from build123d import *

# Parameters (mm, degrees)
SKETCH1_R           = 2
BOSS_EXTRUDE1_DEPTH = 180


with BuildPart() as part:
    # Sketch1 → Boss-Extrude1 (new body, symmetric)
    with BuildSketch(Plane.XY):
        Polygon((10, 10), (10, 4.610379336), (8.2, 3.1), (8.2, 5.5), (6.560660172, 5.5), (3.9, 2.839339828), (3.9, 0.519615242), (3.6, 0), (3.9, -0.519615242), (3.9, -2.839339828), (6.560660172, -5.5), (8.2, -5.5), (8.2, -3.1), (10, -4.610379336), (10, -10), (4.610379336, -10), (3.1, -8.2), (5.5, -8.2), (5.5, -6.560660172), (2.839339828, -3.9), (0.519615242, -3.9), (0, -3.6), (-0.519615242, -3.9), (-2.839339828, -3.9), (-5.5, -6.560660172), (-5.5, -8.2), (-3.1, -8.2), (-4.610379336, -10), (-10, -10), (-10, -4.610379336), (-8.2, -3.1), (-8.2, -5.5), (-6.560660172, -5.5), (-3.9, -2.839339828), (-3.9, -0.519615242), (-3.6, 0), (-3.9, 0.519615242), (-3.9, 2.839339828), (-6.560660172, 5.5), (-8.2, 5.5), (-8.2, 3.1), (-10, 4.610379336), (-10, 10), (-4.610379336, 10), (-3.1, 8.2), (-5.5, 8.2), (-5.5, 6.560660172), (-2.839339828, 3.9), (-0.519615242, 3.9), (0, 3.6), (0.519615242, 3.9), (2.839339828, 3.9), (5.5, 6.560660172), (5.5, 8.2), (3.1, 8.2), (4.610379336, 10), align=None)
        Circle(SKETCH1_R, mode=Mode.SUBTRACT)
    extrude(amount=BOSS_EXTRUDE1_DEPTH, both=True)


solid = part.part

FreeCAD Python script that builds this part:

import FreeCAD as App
import Part
import Sketcher
Q = App.Units.Quantity

doc = App.newDocument("Part")
body = doc.addObject("PartDesign::Body", "Body")

sketch1 = doc.addObject("Sketcher::SketchObject", "Sketch")
body.addObject(sketch1)
sketch1.AttachmentSupport = (doc.XY_Plane, [""])
sketch1.MapMode = "FlatFace"
sketch1.addGeometry([
    Part.LineSegment(App.Vector(10, 4.6, 0), App.Vector(10, 10, 0)),
    Part.LineSegment(App.Vector(10, 10, 0), App.Vector(4.6, 10, 0)),
    Part.LineSegment(App.Vector(4.6, 10, 0), App.Vector(3.1, 8.2, 0)),
    Part.LineSegment(App.Vector(3.1, 8.2, 0), App.Vector(5.5, 8.2, 0)),
    Part.LineSegment(App.Vector(5.5, 8.2, 0), App.Vector(5.5, 6.6, 0)),
    Part.LineSegment(App.Vector(5.5, 6.6, 0), App.Vector(2.8, 3.9, 0)),
    Part.LineSegment(App.Vector(2.8, 3.9, 0), App.Vector(0.5, 3.9, 0)),
    Part.LineSegment(App.Vector(0.5, 3.9, 0), App.Vector(0, 3.6, 0)),
    Part.LineSegment(App.Vector(0, 3.6, 0), App.Vector(-0.5, 3.9, 0)),
    Part.LineSegment(App.Vector(-0.5, 3.9, 0), App.Vector(-2.8, 3.9, 0)),
    Part.LineSegment(App.Vector(-2.8, 3.9, 0), App.Vector(-5.5, 6.6, 0)),
    Part.LineSegment(App.Vector(-5.5, 6.6, 0), App.Vector(-5.5, 8.2, 0)),
    Part.LineSegment(App.Vector(-5.5, 8.2, 0), App.Vector(-3.1, 8.2, 0)),
    Part.LineSegment(App.Vector(-3.1, 8.2, 0), App.Vector(-4.6, 10, 0)),
    Part.LineSegment(App.Vector(-4.6, 10, 0), App.Vector(-10, 10, 0)),
    Part.LineSegment(App.Vector(-10, 10, 0), App.Vector(-10, 4.6, 0)),
    Part.LineSegment(App.Vector(-10, 4.6, 0), App.Vector(-8.2, 3.1, 0)),
    Part.LineSegment(App.Vector(-8.2, 3.1, 0), App.Vector(-8.2, 5.5, 0)),
    Part.LineSegment(App.Vector(-8.2, 5.5, 0), App.Vector(-6.6, 5.5, 0)),
    Part.LineSegment(App.Vector(-6.6, 5.5, 0), App.Vector(-3.9, 2.8, 0)),
    Part.LineSegment(App.Vector(-3.9, 2.8, 0), App.Vector(-3.9, 0.5, 0)),
    Part.LineSegment(App.Vector(-3.9, 0.5, 0), App.Vector(-3.6, 0, 0)),
    Part.LineSegment(App.Vector(-3.6, 0, 0), App.Vector(-3.9, -0.5, 0)),
    Part.LineSegment(App.Vector(-3.9, -0.5, 0), App.Vector(-3.9, -2.8, 0)),
    Part.LineSegment(App.Vector(-3.9, -2.8, 0), App.Vector(-6.6, -5.5, 0)),
    Part.LineSegment(App.Vector(-6.6, -5.5, 0), App.Vector(-8.2, -5.5, 0)),
    Part.LineSegment(App.Vector(-8.2, -5.5, 0), App.Vector(-8.2, -3.1, 0)),
    Part.LineSegment(App.Vector(-8.2, -3.1, 0), App.Vector(-10, -4.6, 0)),
    Part.LineSegment(App.Vector(-10, -4.6, 0), App.Vector(-10, -10, 0)),
    Part.LineSegment(App.Vector(-10, -10, 0), App.Vector(-4.6, -10, 0)),
    Part.LineSegment(App.Vector(-4.6, -10, 0), App.Vector(-3.1, -8.2, 0)),
    Part.LineSegment(App.Vector(-3.1, -8.2, 0), App.Vector(-5.5, -8.2, 0)),
    Part.LineSegment(App.Vector(-5.5, -8.2, 0), App.Vector(-5.5, -6.6, 0)),
    Part.LineSegment(App.Vector(-5.5, -6.6, 0), App.Vector(-2.8, -3.9, 0)),
    Part.LineSegment(App.Vector(-2.8, -3.9, 0), App.Vector(-0.5, -3.9, 0)),
    Part.LineSegment(App.Vector(-0.5, -3.9, 0), App.Vector(0, -3.6, 0)),
    Part.LineSegment(App.Vector(0, -3.6, 0), App.Vector(0.5, -3.9, 0)),
    Part.LineSegment(App.Vector(0.5, -3.9, 0), App.Vector(2.8, -3.9, 0)),
    Part.LineSegment(App.Vector(2.8, -3.9, 0), App.Vector(5.5, -6.6, 0)),
    Part.LineSegment(App.Vector(5.5, -6.6, 0), App.Vector(5.5, -8.2, 0)),
    Part.LineSegment(App.Vector(5.5, -8.2, 0), App.Vector(3.1, -8.2, 0)),
    Part.LineSegment(App.Vector(3.1, -8.2, 0), App.Vector(4.6, -10, 0)),
    Part.LineSegment(App.Vector(4.6, -10, 0), App.Vector(10, -10, 0)),
    Part.LineSegment(App.Vector(10, -10, 0), App.Vector(10, -4.6, 0)),
    Part.LineSegment(App.Vector(10, -4.6, 0), App.Vector(8.2, -3.1, 0)),
    Part.LineSegment(App.Vector(8.2, -3.1, 0), App.Vector(8.2, -5.5, 0)),
    Part.LineSegment(App.Vector(8.2, -5.5, 0), App.Vector(6.6, -5.5, 0)),
    Part.LineSegment(App.Vector(6.6, -5.5, 0), App.Vector(3.9, -2.8, 0)),
    Part.LineSegment(App.Vector(3.9, -2.8, 0), App.Vector(3.9, -0.5, 0)),
    Part.LineSegment(App.Vector(3.9, -0.5, 0), App.Vector(3.6, 0, 0)),
    Part.LineSegment(App.Vector(3.6, 0, 0), App.Vector(3.9, 0.5, 0)),
    Part.LineSegment(App.Vector(3.9, 0.5, 0), App.Vector(3.9, 2.8, 0)),
    Part.LineSegment(App.Vector(3.9, 2.8, 0), App.Vector(6.6, 5.5, 0)),
    Part.LineSegment(App.Vector(6.6, 5.5, 0), App.Vector(8.2, 5.5, 0)),
    Part.LineSegment(App.Vector(8.2, 5.5, 0), App.Vector(8.2, 3.1, 0)),
    Part.LineSegment(App.Vector(8.2, 3.1, 0), App.Vector(10, 4.6, 0)),
    Part.Circle(App.Vector(0, 0, 0), App.Vector(0, 0, 1), 2),
], False)
sketch1.addConstraint([
    Sketcher.Constraint("Coincident", 0, 2, 1, 1),
    Sketcher.Constraint("Coincident", 1, 2, 2, 1),
    Sketcher.Constraint("Coincident", 2, 2, 3, 1),
    Sketcher.Constraint("Coincident", 3, 2, 4, 1),
    Sketcher.Constraint("Coincident", 4, 2, 5, 1),
    Sketcher.Constraint("Coincident", 5, 2, 6, 1),
    Sketcher.Constraint("Coincident", 6, 2, 7, 1),
    Sketcher.Constraint("Coincident", 7, 2, 8, 1),
    Sketcher.Constraint("Coincident", 8, 2, 9, 1),
    Sketcher.Constraint("Coincident", 9, 2, 10, 1),
    Sketcher.Constraint("Coincident", 10, 2, 11, 1),
    Sketcher.Constraint("Coincident", 11, 2, 12, 1),
    Sketcher.Constraint("Coincident", 12, 2, 13, 1),
    Sketcher.Constraint("Coincident", 13, 2, 14, 1),
    Sketcher.Constraint("Coincident", 14, 2, 15, 1),
    Sketcher.Constraint("Coincident", 15, 2, 16, 1),
    Sketcher.Constraint("Coincident", 16, 2, 17, 1),
    Sketcher.Constraint("Coincident", 17, 2, 18, 1),
    Sketcher.Constraint("Coincident", 18, 2, 19, 1),
    Sketcher.Constraint("Coincident", 19, 2, 20, 1),
    Sketcher.Constraint("Coincident", 20, 2, 21, 1),
    Sketcher.Constraint("Coincident", 21, 2, 22, 1),
    Sketcher.Constraint("Coincident", 22, 2, 23, 1),
    Sketcher.Constraint("Coincident", 23, 2, 24, 1),
    Sketcher.Constraint("Coincident", 24, 2, 25, 1),
    Sketcher.Constraint("Coincident", 25, 2, 26, 1),
    Sketcher.Constraint("Coincident", 26, 2, 27, 1),
    Sketcher.Constraint("Coincident", 27, 2, 28, 1),
    Sketcher.Constraint("Coincident", 28, 2, 29, 1),
    Sketcher.Constraint("Coincident", 29, 2, 30, 1),
    Sketcher.Constraint("Coincident", 30, 2, 31, 1),
    Sketcher.Constraint("Coincident", 31, 2, 32, 1),
    Sketcher.Constraint("Coincident", 32, 2, 33, 1),
    Sketcher.Constraint("Coincident", 33, 2, 34, 1),
    Sketcher.Constraint("Coincident", 34, 2, 35, 1),
    Sketcher.Constraint("Coincident", 35, 2, 36, 1),
    Sketcher.Constraint("Coincident", 36, 2, 37, 1),
    Sketcher.Constraint("Coincident", 37, 2, 38, 1),
    Sketcher.Constraint("Coincident", 38, 2, 39, 1),
    Sketcher.Constraint("Coincident", 39, 2, 40, 1),
    Sketcher.Constraint("Coincident", 40, 2, 41, 1),
    Sketcher.Constraint("Coincident", 41, 2, 42, 1),
    Sketcher.Constraint("Coincident", 42, 2, 43, 1),
    Sketcher.Constraint("Coincident", 43, 2, 44, 1),
    Sketcher.Constraint("Coincident", 44, 2, 45, 1),
    Sketcher.Constraint("Coincident", 45, 2, 46, 1),
    Sketcher.Constraint("Coincident", 46, 2, 47, 1),
    Sketcher.Constraint("Coincident", 47, 2, 48, 1),
    Sketcher.Constraint("Coincident", 48, 2, 49, 1),
    Sketcher.Constraint("Coincident", 49, 2, 50, 1),
    Sketcher.Constraint("Coincident", 50, 2, 51, 1),
    Sketcher.Constraint("Coincident", 51, 2, 52, 1),
    Sketcher.Constraint("Coincident", 52, 2, 53, 1),
    Sketcher.Constraint("Coincident", 53, 2, 54, 1),
    Sketcher.Constraint("Coincident", 54, 2, 55, 1),
    Sketcher.Constraint("Coincident", 55, 2, 0, 1),
    Sketcher.Constraint("Vertical", 0),
    Sketcher.Constraint("Horizontal", 1),
    Sketcher.Constraint("Horizontal", 3),
    Sketcher.Constraint("Vertical", 4),
    Sketcher.Constraint("Horizontal", 6),
    Sketcher.Constraint("Horizontal", 9),
    Sketcher.Constraint("Vertical", 11),
    Sketcher.Constraint("Horizontal", 12),
    Sketcher.Constraint("Horizontal", 14),
    Sketcher.Constraint("Vertical", 15),
    Sketcher.Constraint("Vertical", 17),
    Sketcher.Constraint("Horizontal", 18),
    Sketcher.Constraint("Vertical", 20),
    Sketcher.Constraint("Vertical", 23),
    Sketcher.Constraint("Horizontal", 25),
    Sketcher.Constraint("Vertical", 26),
    Sketcher.Constraint("Vertical", 28),
    Sketcher.Constraint("Horizontal", 29),
    Sketcher.Constraint("Horizontal", 31),
    Sketcher.Constraint("Vertical", 32),
    Sketcher.Constraint("Horizontal", 34),
    Sketcher.Constraint("Horizontal", 37),
    Sketcher.Constraint("Vertical", 39),
    Sketcher.Constraint("Horizontal", 40),
    Sketcher.Constraint("Horizontal", 42),
    Sketcher.Constraint("Vertical", 43),
    Sketcher.Constraint("Vertical", 45),
    Sketcher.Constraint("Horizontal", 46),
    Sketcher.Constraint("Vertical", 48),
    Sketcher.Constraint("Vertical", 51),
    Sketcher.Constraint("Horizontal", 53),
    Sketcher.Constraint("Vertical", 54),
    Sketcher.Constraint("Coincident", 56, 3, -1, 1),
    Sketcher.Constraint("Symmetric", 0, 2, 28, 2, -1, 1),
    Sketcher.Constraint("Symmetric", 2, 2, 30, 2, -1, 1),
    Sketcher.Constraint("Symmetric", 4, 2, 32, 2, -1, 1),
    Sketcher.Constraint("Symmetric", 5, 2, 33, 2, -1, 1),
    Sketcher.Constraint("Symmetric", 7, 2, 35, 2, -1, 1),
    Sketcher.Constraint("Symmetric", 8, 2, 36, 2, -1, 1),
    Sketcher.Constraint("Symmetric", 10, 2, 38, 2, -1, 1),
    Sketcher.Constraint("Symmetric", 12, 2, 40, 2, -1, 1),
    Sketcher.Constraint("Symmetric", 13, 2, 41, 2, -1, 1),
    Sketcher.Constraint("Symmetric", 15, 2, 43, 2, -1, 1),
    Sketcher.Constraint("Symmetric", 16, 2, 44, 2, -1, 1),
    Sketcher.Constraint("Symmetric", 18, 2, 46, 2, -1, 1),
    Sketcher.Constraint("Symmetric", 19, 2, 47, 2, -1, 1),
    Sketcher.Constraint("Symmetric", 21, 2, 49, 2, -1, 1),
    Sketcher.Constraint("Symmetric", 22, 2, 50, 2, -1, 1),
    Sketcher.Constraint("Symmetric", 24, 2, 52, 2, -1, 1),
    Sketcher.Constraint("Symmetric", 26, 2, 54, 2, -1, 1),
    Sketcher.Constraint("Symmetric", 6, 2, 8, 2, -2),
    Sketcher.Constraint("Symmetric", 4, 2, 10, 2, -2),
    Sketcher.Constraint("Symmetric", 2, 2, 12, 2, -2),
    Sketcher.Constraint("Symmetric", 1, 2, 13, 2, -2),
    Sketcher.Constraint("Symmetric", 27, 2, 43, 2, -2),
    Sketcher.Constraint("Symmetric", 26, 2, 44, 2, -2),
    Sketcher.Constraint("Symmetric", 24, 2, 46, 2, -2),
    Sketcher.Constraint("Symmetric", 23, 2, 47, 2, -2),
    Sketcher.Constraint("PointOnObject", 7, 2, -2),
    Sketcher.Constraint("PointOnObject", 21, 2, -1),
    Sketcher.Constraint("Perpendicular", 5, 10),
    Sketcher.Constraint("Perpendicular", 2, 16),
    Sketcher.Constraint("Parallel", 10, 19),
    Sketcher.Constraint("Perpendicular", 7, 21),
    Sketcher.Constraint("Perpendicular", 8, 22),
    Sketcher.Constraint("Perpendicular", 19, 24),
    Sketcher.Constraint("Perpendicular", 16, 30),
    Sketcher.Constraint("Perpendicular", 21, 35),
    Sketcher.Constraint("Perpendicular", 33, 38),
    Sketcher.Constraint("Perpendicular", 35, 49),
    Sketcher.Constraint("Perpendicular", 47, 52),
    Sketcher.Constraint("Perpendicular", 41, 55),
    Sketcher.Constraint("Equal", 42, 0),
    Sketcher.Constraint("Equal", 53, 4),
    Sketcher.Constraint("Equal", 40, 17),
    Sketcher.Constraint("Equal", 37, 20),
    Sketcher.Constraint("Equal", 13, 16),
    Sketcher.Constraint("Equal", 10, 19),
    Sketcher.Constraint("Equal", 8, 21),
    Sketcher.Constraint("Diameter", 56, Q("4 mm")),
    Sketcher.Constraint("Angle", 2, Q("-130 deg")),
    Sketcher.Constraint("Angle", 7, Q("-150 deg")),
    Sketcher.Constraint("DistanceX", 3, 1, 3, 2, Q("2.4 mm")),
    Sketcher.Constraint("DistanceX", -1, 1, 0, 2, Q("10 mm")),
    Sketcher.Constraint("Distance", 7, Q("0.6 mm")),
    Sketcher.Constraint("DistanceX", -1, 1, 2, 2, Q("3.1 mm")),
    Sketcher.Constraint("DistanceY", -1, 1, 2, 2, Q("8.2 mm")),
    Sketcher.Constraint("DistanceY", -1, 1, 5, 2, Q("3.9 mm")),
    Sketcher.Constraint("DistanceX", 18, 1, 18, 2, Q("1.63934 mm")),
])
pad1 = doc.addObject("PartDesign::Pad", "Pad")
body.addObject(pad1)
pad1.Profile = sketch1
pad1.Length = 360
pad1.Midplane = True

doc.recompute()
